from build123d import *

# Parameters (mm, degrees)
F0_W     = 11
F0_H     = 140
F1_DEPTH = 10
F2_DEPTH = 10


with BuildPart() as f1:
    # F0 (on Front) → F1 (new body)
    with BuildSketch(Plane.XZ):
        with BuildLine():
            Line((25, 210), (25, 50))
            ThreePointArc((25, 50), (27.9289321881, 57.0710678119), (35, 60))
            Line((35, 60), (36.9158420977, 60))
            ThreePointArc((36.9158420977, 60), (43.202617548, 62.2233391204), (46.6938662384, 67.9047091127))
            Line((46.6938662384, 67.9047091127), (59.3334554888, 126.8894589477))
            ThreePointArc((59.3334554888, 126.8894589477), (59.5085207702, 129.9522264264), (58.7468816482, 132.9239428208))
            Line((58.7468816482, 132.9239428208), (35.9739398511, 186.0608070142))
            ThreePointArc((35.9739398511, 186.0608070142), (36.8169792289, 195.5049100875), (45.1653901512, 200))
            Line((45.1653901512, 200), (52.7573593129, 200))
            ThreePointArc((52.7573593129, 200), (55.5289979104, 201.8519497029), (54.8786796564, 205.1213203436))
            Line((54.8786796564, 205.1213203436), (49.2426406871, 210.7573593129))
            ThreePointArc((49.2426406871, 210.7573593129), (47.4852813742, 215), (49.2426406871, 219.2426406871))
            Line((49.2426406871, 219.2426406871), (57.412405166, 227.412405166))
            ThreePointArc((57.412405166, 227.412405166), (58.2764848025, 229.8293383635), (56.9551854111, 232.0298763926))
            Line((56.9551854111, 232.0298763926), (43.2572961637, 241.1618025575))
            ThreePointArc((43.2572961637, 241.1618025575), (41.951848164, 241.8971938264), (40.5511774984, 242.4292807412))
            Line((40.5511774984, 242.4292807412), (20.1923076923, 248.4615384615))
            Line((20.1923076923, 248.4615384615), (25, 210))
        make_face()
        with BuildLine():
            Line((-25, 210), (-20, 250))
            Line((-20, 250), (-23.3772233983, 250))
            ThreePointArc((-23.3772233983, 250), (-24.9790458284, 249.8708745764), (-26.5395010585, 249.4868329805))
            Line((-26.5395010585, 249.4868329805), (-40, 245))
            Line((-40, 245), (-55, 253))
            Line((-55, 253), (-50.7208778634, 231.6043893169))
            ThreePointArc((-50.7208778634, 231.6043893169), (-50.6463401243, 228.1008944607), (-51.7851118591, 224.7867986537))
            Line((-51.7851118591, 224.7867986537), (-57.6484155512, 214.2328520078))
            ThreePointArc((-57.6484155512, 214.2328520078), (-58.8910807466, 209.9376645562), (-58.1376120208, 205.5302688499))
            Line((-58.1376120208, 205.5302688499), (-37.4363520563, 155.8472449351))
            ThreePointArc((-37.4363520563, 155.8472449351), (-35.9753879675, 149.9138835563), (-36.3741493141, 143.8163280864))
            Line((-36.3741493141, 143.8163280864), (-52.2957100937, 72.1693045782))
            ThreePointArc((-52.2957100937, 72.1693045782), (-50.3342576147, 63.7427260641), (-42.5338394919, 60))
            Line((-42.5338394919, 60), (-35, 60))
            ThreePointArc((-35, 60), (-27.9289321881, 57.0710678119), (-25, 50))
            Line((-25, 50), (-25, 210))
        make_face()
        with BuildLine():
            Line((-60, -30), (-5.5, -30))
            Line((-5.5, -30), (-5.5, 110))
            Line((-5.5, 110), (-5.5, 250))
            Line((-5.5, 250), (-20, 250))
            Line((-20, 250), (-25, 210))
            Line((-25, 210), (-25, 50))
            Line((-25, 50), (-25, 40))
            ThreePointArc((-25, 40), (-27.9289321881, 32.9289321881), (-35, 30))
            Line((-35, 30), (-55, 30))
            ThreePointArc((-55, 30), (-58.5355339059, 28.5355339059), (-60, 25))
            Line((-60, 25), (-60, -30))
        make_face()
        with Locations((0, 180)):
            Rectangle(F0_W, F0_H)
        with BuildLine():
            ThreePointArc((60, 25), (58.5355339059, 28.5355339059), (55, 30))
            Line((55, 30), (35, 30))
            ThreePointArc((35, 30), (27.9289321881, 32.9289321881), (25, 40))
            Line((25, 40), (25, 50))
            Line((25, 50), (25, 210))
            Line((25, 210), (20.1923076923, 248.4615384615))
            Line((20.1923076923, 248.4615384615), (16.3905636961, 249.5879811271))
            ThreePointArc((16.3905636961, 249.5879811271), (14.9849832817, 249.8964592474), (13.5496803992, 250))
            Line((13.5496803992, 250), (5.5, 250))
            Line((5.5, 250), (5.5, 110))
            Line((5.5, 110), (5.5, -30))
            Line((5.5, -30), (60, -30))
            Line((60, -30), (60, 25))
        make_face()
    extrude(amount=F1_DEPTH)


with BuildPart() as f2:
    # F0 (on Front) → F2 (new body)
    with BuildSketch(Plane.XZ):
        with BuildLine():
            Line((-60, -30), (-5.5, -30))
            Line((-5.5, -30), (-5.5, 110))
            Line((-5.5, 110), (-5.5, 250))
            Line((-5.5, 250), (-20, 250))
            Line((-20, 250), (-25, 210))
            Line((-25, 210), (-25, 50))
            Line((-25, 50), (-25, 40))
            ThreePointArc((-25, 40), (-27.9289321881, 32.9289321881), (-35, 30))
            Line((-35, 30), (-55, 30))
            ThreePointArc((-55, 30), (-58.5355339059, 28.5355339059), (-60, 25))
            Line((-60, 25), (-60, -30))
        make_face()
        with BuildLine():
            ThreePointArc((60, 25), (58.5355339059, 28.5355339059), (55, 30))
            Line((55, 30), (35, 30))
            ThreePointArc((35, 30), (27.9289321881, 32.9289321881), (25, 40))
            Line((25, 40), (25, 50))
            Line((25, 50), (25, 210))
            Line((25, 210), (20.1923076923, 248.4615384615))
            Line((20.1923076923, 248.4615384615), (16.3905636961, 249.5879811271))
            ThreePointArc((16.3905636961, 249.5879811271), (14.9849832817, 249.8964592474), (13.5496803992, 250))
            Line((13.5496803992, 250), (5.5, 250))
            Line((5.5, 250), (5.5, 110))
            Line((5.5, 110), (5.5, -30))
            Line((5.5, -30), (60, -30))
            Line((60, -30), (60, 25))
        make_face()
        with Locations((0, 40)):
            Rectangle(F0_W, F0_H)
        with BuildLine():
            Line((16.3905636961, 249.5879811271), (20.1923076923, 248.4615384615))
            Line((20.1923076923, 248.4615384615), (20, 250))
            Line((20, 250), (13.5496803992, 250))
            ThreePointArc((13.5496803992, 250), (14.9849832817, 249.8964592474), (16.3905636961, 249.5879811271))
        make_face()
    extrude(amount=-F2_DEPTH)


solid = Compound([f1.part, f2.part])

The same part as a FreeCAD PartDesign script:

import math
import FreeCAD as App
import Part
import Sketcher

V = App.Vector
Q = App.Units.Quantity

doc = App.newDocument("Part")
body = doc.addObject("PartDesign::Body", "Body")

# Sketch on XZ plane
sketch1 = body.newObject("Sketcher::SketchObject", "Sketch")
sketch1.AttachmentSupport = (doc.getObject("XZ_Plane"), [""])
sketch1.MapMode = "FlatFace"
sketch1.addGeometry([
    Part.ArcOfCircle(Part.Circle(V(35, 50, 0), V(0, 0, 1), 10), math.radians(90), math.radians(180)),  # 0
    Part.LineSegment(V(35, 60, 0), V(36.915842, 60, 0)),  # 1
    Part.ArcOfCircle(Part.Circle(V(36.915842, 70, 0), V(0, 0, 1), 10), math.radians(-90), math.radians(-12.094757)),  # 2
    Part.LineSegment(V(46.693866, 67.904709, 0), V(59.333455, 126.889459, 0)),  # 3
    Part.ArcOfCircle(Part.Circle(V(49.555431, 128.98475, 0), V(0, 0, 1), 10), math.radians(-12.094757), math.radians(23.198591)),  # 4
    Part.LineSegment(V(58.746882, 132.923943, 0), V(35.97394, 186.060807, 0)),  # 5
    Part.ArcOfCircle(Part.Circle(V(45.16539, 190, 0), V(0, 0, 1), 10), math.radians(90), math.radians(203.198591)),  # 6
    Part.LineSegment(V(45.16539, 200, 0), V(52.757359, 200, 0)),  # 7
    Part.ArcOfCircle(Part.Circle(V(52.757359, 203, 0), V(0, 0, 1), 3), math.radians(-90), math.radians(45)),  # 8
    Part.LineSegment(V(54.87868, 205.12132, 0), V(49.242641, 210.757359, 0)),  # 9
    Part.ArcOfCircle(Part.Circle(V(53.485281, 215, 0), V(0, 0, 1), 6), math.radians(135), math.radians(225)),  # 10
    Part.LineSegment(V(49.242641, 219.242641, 0), V(57.412405, 227.412405, 0)),  # 11
    Part.ArcOfCircle(Part.Circle(V(55.291085, 229.533726, 0), V(0, 0, 1), 3), math.radians(-45), math.radians(56.309932)),  # 12
    Part.LineSegment(V(56.955185, 232.029876, 0), V(43.257296, 241.161803, 0)),  # 13
    Part.ArcOfCircle(Part.Circle(V(37.710294, 232.8413, 0), V(0, 0, 1), 10), math.radians(56.309932), math.radians(73.495639)),  # 14
    Part.LineSegment(V(40.551177, 242.429281, 0), V(20.192308, 248.461538, 0)),  # 15
    Part.LineSegment(V(20.192308, 248.461538, 0), V(16.390564, 249.587981, 0)),  # 16
    Part.ArcOfCircle(Part.Circle(V(13.54968, 240, 0), V(0, 0, 1), 10), math.radians(73.495639), math.radians(90)),  # 17
    Part.LineSegment(V(13.54968, 250, 0), V(-23.377223, 250, 0)),  # 18
    Part.ArcOfCircle(Part.Circle(V(-23.377223, 240, 0), V(0, 0, 1), 10), math.radians(90), math.radians(108.434949)),  # 19
    Part.LineSegment(V(-26.539501, 249.486833, 0), V(-40, 245, 0)),  # 20
    Part.LineSegment(V(-40, 245, 0), V(-55, 253, 0)),  # 21
    Part.LineSegment(V(-55, 253, 0), V(-50.720878, 231.604389, 0)),  # 22
    Part.ArcOfCircle(Part.Circle(V(-60.526685, 229.643228, 0), V(0, 0, 1), 10), math.radians(-29.054604), math.radians(11.309932)),  # 23
    Part.LineSegment(V(-51.785112, 224.786799, 0), V(-57.648416, 214.232852, 0)),  # 24
    Part.ArcOfCircle(Part.Circle(V(-48.906843, 209.376423, 0), V(0, 0, 1), 10), math.radians(150.945396), math.radians(202.619865)),  # 25
    Part.LineSegment(V(-58.137612, 205.530269, 0), V(-37.436352, 155.847245, 0)),  # 26
    Part.ArcOfCircle(Part.Circle(V(-55.897891, 148.154937, 0), V(0, 0, 1), 20), math.radians(-12.528808), math.radians(22.619865)),  # 27
    Part.LineSegment(V(-36.374149, 143.816328, 0), V(-52.29571, 72.169305, 0)),  # 28
    Part.ArcOfCircle(Part.Circle(V(-42.533839, 70, 0), V(0, 0, 1), 10), math.radians(167.471192), math.radians(270)),  # 29
    Part.LineSegment(V(-42.533839, 60, 0), V(-35, 60, 0)),  # 30
    Part.ArcOfCircle(Part.Circle(V(-35, 50, 0), V(0, 0, 1), 10), math.radians(0), math.radians(90)),  # 31
    Part.LineSegment(V(-25, 50, 0), V(-25, 40, 0)),  # 32
    Part.ArcOfCircle(Part.Circle(V(-35, 40, 0), V(0, 0, 1), 10), math.radians(-90), math.radians(0)),  # 33
    Part.LineSegment(V(-35, 30, 0), V(-55, 30, 0)),  # 34
    Part.ArcOfCircle(Part.Circle(V(-55, 25, 0), V(0, 0, 1), 5), math.radians(90), math.radians(180)),  # 35
    Part.LineSegment(V(-60, 25, 0), V(-60, -30, 0)),  # 36
    Part.LineSegment(V(-60, -30, 0), V(-5.5, -30, 0)),  # 37
    Part.LineSegment(V(-5.5, -30, 0), V(-5.5, 110, 0)),  # 38
    Part.LineSegment(V(-5.5, 110, 0), V(5.5, 110, 0)),  # 39
    Part.LineSegment(V(5.5, 110, 0), V(5.5, -30, 0)),  # 40
    Part.LineSegment(V(5.5, -30, 0), V(60, -30, 0)),  # 41
    Part.LineSegment(V(60, -30, 0), V(60, 25, 0)),  # 42
    Part.ArcOfCircle(Part.Circle(V(55, 25, 0), V(0, 0, 1), 5), math.radians(0), math.radians(90)),  # 43
    Part.LineSegment(V(55, 30, 0), V(35, 30, 0)),  # 44
    Part.ArcOfCircle(Part.Circle(V(35, 40, 0), V(0, 0, 1), 10), math.radians(180), math.radians(270)),  # 45
    Part.LineSegment(V(25, 40, 0), V(25, 50, 0)),  # 46
], False)
sketch1.addConstraint([
    Sketcher.Constraint("Tangent", 0, 1, 1, 1),
    Sketcher.Constraint("Tangent", 1, 2, 2, 1),
    Sketcher.Constraint("Tangent", 2, 2, 3, 1),
    Sketcher.Constraint("Tangent", 3, 2, 4, 1),
    Sketcher.Constraint("Tangent", 4, 2, 5, 1),
    Sketcher.Constraint("Tangent", 5, 2, 6, 2),
    Sketcher.Constraint("Tangent", 6, 1, 7, 1),
    Sketcher.Constraint("Tangent", 7, 2, 8, 1),
    Sketcher.Constraint("Tangent", 8, 2, 9, 1),
    Sketcher.Constraint("Tangent", 9, 2, 10, 2),
    Sketcher.Constraint("Tangent", 10, 1, 11, 1),
    Sketcher.Constraint("Tangent", 11, 2, 12, 1),
    Sketcher.Constraint("Tangent", 12, 2, 13, 1),
    Sketcher.Constraint("Tangent", 13, 2, 14, 1),
    Sketcher.Constraint("Tangent", 14, 2, 15, 1),
    Sketcher.Constraint("Coincident", 15, 2, 16, 1),
    Sketcher.Constraint("Tangent", 16, 2, 17, 1),
    Sketcher.Constraint("Tangent", 17, 2, 18, 1),
    Sketcher.Constraint("Tangent", 18, 2, 19, 1),
    Sketcher.Constraint("Tangent", 19, 2, 20, 1),
    Sketcher.Constraint("Coincident", 20, 2, 21, 1),
    Sketcher.Constraint("Coincident", 21, 2, 22, 1),
    Sketcher.Constraint("Tangent", 22, 2, 23, 2),
    Sketcher.Constraint("Tangent", 23, 1, 24, 1),
    Sketcher.Constraint("Tangent", 24, 2, 25, 1),
    Sketcher.Constraint("Tangent", 25, 2, 26, 1),
    Sketcher.Constraint("Tangent", 26, 2, 27, 2),
    Sketcher.Constraint("Tangent", 27, 1, 28, 1),
    Sketcher.Constraint("Tangent", 28, 2, 29, 1),
    Sketcher.Constraint("Tangent", 29, 2, 30, 1),
    Sketcher.Constraint("Tangent", 30, 2, 31, 2),
    Sketcher.Constraint("Tangent", 31, 1, 32, 1),
    Sketcher.Constraint("Tangent", 32, 2, 33, 2),
    Sketcher.Constraint("Tangent", 33, 1, 34, 1),
    Sketcher.Constraint("Tangent", 34, 2, 35, 1),
    Sketcher.Constraint("Tangent", 35, 2, 36, 1),
    Sketcher.Constraint("Coincident", 36, 2, 37, 1),
    Sketcher.Constraint("Coincident", 37, 2, 38, 1),
    Sketcher.Constraint("Coincident", 38, 2, 39, 1),
    Sketcher.Constraint("Coincident", 39, 2, 40, 1),
    Sketcher.Constraint("Coincident", 40, 2, 41, 1),
    Sketcher.Constraint("Coincident", 41, 2, 42, 1),
    Sketcher.Constraint("Tangent", 42, 2, 43, 1),
    Sketcher.Constraint("Tangent", 43, 2, 44, 1),
    Sketcher.Constraint("Tangent", 44, 2, 45, 2),
    Sketcher.Constraint("Tangent", 45, 1, 46, 1),
    Sketcher.Constraint("Tangent", 46, 2, 0, 2),
    Sketcher.Constraint("Horizontal", 1),
    Sketcher.Constraint("Horizontal", 7),
    Sketcher.Constraint("Horizontal", 18),
    Sketcher.Constraint("Horizontal", 30),
    Sketcher.Constraint("Vertical", 32),
    Sketcher.Constraint("Horizontal", 34),
    Sketcher.Constraint("Vertical", 36),
    Sketcher.Constraint("Horizontal", 37),
    Sketcher.Constraint("Vertical", 38),
    Sketcher.Constraint("Horizontal", 39),
    Sketcher.Constraint("Vertical", 40),
    Sketcher.Constraint("Horizontal", 41),
    Sketcher.Constraint("Vertical", 42),
    Sketcher.Constraint("Horizontal", 44),
    Sketcher.Constraint("Vertical", 46),
    Sketcher.Constraint("Equal", 0, 2),
    Sketcher.Constraint("Equal", 2, 4),
    Sketcher.Constraint("Equal", 4, 6),
    Sketcher.Constraint("Equal", 8, 12),
    Sketcher.Constraint("Equal", 6, 14),
    Sketcher.Constraint("Equal", 14, 17),
    Sketcher.Constraint("Equal", 17, 19),
    Sketcher.Constraint("Equal", 19, 23),
    Sketcher.Constraint("Equal", 23, 25),
    Sketcher.Constraint("Equal", 25, 29),
    Sketcher.Constraint("Equal", 29, 31),
    Sketcher.Constraint("Equal", 31, 33),
    Sketcher.Constraint("Equal", 35, 43),
    Sketcher.Constraint("Equal", 33, 45),
    Sketcher.Constraint("Symmetric", 0, 3, 31, 3, -2),
    Sketcher.Constraint("Symmetric", 35, 3, 43, 3, -2),
    Sketcher.Constraint("Symmetric", 37, 2, 40, 2, -2),
    Sketcher.Constraint("Perpendicular", 9, 11),
    Sketcher.Constraint("Parallel", 15, 16),
    Sketcher.Constraint("Vertical", 9, 2, 10, 1),
    Sketcher.Constraint("Vertical", 35, 3, 21, 2),
    Sketcher.Constraint("Radius", 0, Q("10 mm")),
    Sketcher.Constraint("Radius", 8, Q("3 mm")),
    Sketcher.Constraint("Radius", 10, Q("6 mm")),
    Sketcher.Constraint("Radius", 27, Q("20 mm")),
    Sketcher.Constraint("Radius", 35, Q("5 mm")),
    Sketcher.Constraint("DistanceX", 34, 2, 34, 1, Q("20 mm")),
    Sketcher.Constraint("DistanceX", 39, 1, 39, 2, Q("11 mm")),
    Sketcher.Constraint("DistanceY", 32, 2, 32, 1, Q("10 mm")),
    Sketcher.Constraint("DistanceY", 36, 2, 36, 1, Q("55 mm")),
    Sketcher.Constraint("DistanceY", 38, 1, 38, 2, Q("140 mm")),
    Sketcher.Constraint("Distance", 21, Q("17 mm")),
    Sketcher.Constraint("DistanceX", 37, 1, 37, 2, Q("54.5 mm")),
    Sketcher.Constraint("DistanceY", -1, 1, 0, 3, Q("50 mm")),
    Sketcher.Constraint("DistanceY", -1, 1, 6, 3, Q("190 mm")),
    Sketcher.Constraint("DistanceY", -1, 1, 10, 3, Q("215 mm")),
    Sketcher.Constraint("DistanceY", -1, 1, 17, 3, Q("240 mm")),
    Sketcher.Constraint("DistanceX", 20, 2, -1, 1, Q("40 mm")),
    Sketcher.Constraint("DistanceY", -1, 1, 20, 2, Q("245 mm")),
    Sketcher.Constraint("DistanceX", 7, 1, 7, 2, Q("7.591969 mm")),
    Sketcher.Constraint("DistanceX", 30, 1, 30, 2, Q("7.533839 mm")),
    Sketcher.Constraint("DistanceY", -1, 1, 14, 3, Q("232.8413 mm")),
    Sketcher.Constraint("DistanceX", 19, 2, -1, 1, Q("26.539501 mm")),
    Sketcher.Constraint("DistanceY", -1, 1, 23, 1, Q("224.786799 mm")),
    Sketcher.Constraint("Distance", 11, Q("11.553792 mm")),
    Sketcher.Constraint("Distance", 15, Q("21.23374 mm")),
    Sketcher.Constraint("Distance", 24, Q("12.073281 mm")),
    Sketcher.Constraint("Distance", 28, Q("73.394769 mm")),
    Sketcher.Constraint("DistanceX", 1, 1, 1, 2, Q("1.915842 mm")),
    Sketcher.Constraint("DistanceX", 18, 2, 18, 1, Q("36.926904 mm")),
    Sketcher.Constraint("DistanceX", -1, 1, 4, 3, Q("49.555431 mm")),
    Sketcher.Constraint("DistanceY", -1, 1, 4, 3, Q("128.98475 mm")),
    Sketcher.Constraint("DistanceX", -1, 1, 6, 3, Q("45.16539 mm")),
    Sketcher.Constraint("DistanceX", 27, 3, -1, 1, Q("55.897891 mm")),
    Sketcher.Constraint("DistanceY", -1, 1, 14, 2, Q("242.429281 mm")),
    Sketcher.Constraint("DistanceY", -1, 1, 22, 2, Q("231.604389 mm")),
    Sketcher.Constraint("DistanceX", 23, 1, -1, 1, Q("51.785112 mm")),
])
pad1 = body.newObject("PartDesign::Pad", "Pad")
pad1.Profile = sketch1
pad1.Length = 10
body2 = doc.addObject("PartDesign::Body", "Body001")

# Sketch on XZ plane
sketch2 = body2.newObject("Sketcher::SketchObject", "Sketch001")
sketch2.AttachmentSupport = (doc.getObject("XZ_Plane001"), [""])
sketch2.MapMode = "FlatFace"
sketch2.addGeometry([
    Part.LineSegment(V(-60, -30, 0), V(60, -30, 0)),  # 0
    Part.LineSegment(V(60, -30, 0), V(60, 25, 0)),  # 1
    Part.ArcOfCircle(Part.Circle(V(55, 25, 0), V(0, 0, 1), 5), math.radians(0), math.radians(90)),  # 2
    Part.LineSegment(V(55, 30, 0), V(35, 30, 0)),  # 3
    Part.ArcOfCircle(Part.Circle(V(35, 40, 0), V(0, 0, 1), 10), math.radians(180), math.radians(270)),  # 4
    Part.LineSegment(V(25, 40, 0), V(25, 210, 0)),  # 5
    Part.LineSegment(V(25, 210, 0), V(20.192308, 248.461538, 0)),  # 6
    Part.LineSegment(V(20.192308, 248.461538, 0), V(20, 250, 0)),  # 7
    Part.LineSegment(V(20, 250, 0), V(5.5, 250, 0)),  # 8
    Part.LineSegment(V(5.5, 250, 0), V(5.5, 110, 0)),  # 9
    Part.LineSegment(V(5.5, 110, 0), V(-5.5, 110, 0)),  # 10
    Part.LineSegment(V(-5.5, 110, 0), V(-5.5, 250, 0)),  # 11
    Part.LineSegment(V(-5.5, 250, 0), V(-20, 250, 0)),  # 12
    Part.LineSegment(V(-20, 250, 0), V(-25, 210, 0)),  # 13
    Part.LineSegment(V(-25, 210, 0), V(-25, 40, 0)),  # 14
    Part.ArcOfCircle(Part.Circle(V(-35, 40, 0), V(0, 0, 1), 10), math.radians(-90), math.radians(0)),  # 15
    Part.LineSegment(V(-35, 30, 0), V(-55, 30, 0)),  # 16
    Part.ArcOfCircle(Part.Circle(V(-55, 25, 0), V(0, 0, 1), 5), math.radians(90), math.radians(180)),  # 17
    Part.LineSegment(V(-60, 25, 0), V(-60, -30, 0)),  # 18
], False)
sketch2.addConstraint([
    Sketcher.Constraint("Coincident", 0, 2, 1, 1),
    Sketcher.Constraint("Tangent", 1, 2, 2, 1),
    Sketcher.Constraint("Tangent", 2, 2, 3, 1),
    Sketcher.Constraint("Tangent", 3, 2, 4, 2),
    Sketcher.Constraint("Tangent", 4, 1, 5, 1),
    Sketcher.Constraint("Coincident", 5, 2, 6, 1),
    Sketcher.Constraint("Coincident", 6, 2, 7, 1),
    Sketcher.Constraint("Coincident", 7, 2, 8, 1),
    Sketcher.Constraint("Coincident", 8, 2, 9, 1),
    Sketcher.Constraint("Coincident", 9, 2, 10, 1),
    Sketcher.Constraint("Coincident", 10, 2, 11, 1),
    Sketcher.Constraint("Coincident", 11, 2, 12, 1),
    Sketcher.Constraint("Coincident", 12, 2, 13, 1),
    Sketcher.Constraint("Coincident", 13, 2, 14, 1),
    Sketcher.Constraint("Tangent", 14, 2, 15, 2),
    Sketcher.Constraint("Tangent", 15, 1, 16, 1),
    Sketcher.Constraint("Tangent", 16, 2, 17, 1),
    Sketcher.Constraint("Tangent", 17, 2, 18, 1),
    Sketcher.Constraint("Coincident", 18, 2, 0, 1),
    Sketcher.Constraint("Horizontal", 0),
    Sketcher.Constraint("Vertical", 1),
    Sketcher.Constraint("Horizontal", 3),
    Sketcher.Constraint("Vertical", 5),
    Sketcher.Constraint("Horizontal", 8),
    Sketcher.Constraint("Vertical", 9),
    Sketcher.Constraint("Horizontal", 10),
    Sketcher.Constraint("Vertical", 11),
    Sketcher.Constraint("Horizontal", 12),
    Sketcher.Constraint("Vertical", 14),
    Sketcher.Constraint("Horizontal", 16),
    Sketcher.Constraint("Vertical", 18),
    Sketcher.Constraint("Equal", 4, 15),
    Sketcher.Constraint("Equal", 2, 17),
    Sketcher.Constraint("Symmetric", 4, 3, 15, 3, -2),
    Sketcher.Constraint("Symmetric", 8, 2, 11, 2, -2),
    Sketcher.Constraint("Parallel", 6, 7),
    Sketcher.Constraint("Horizontal", 5, 2, 13, 2),
    Sketcher.Constraint("Equal", 8, 12),
    Sketcher.Constraint("Equal", 3, 16),
    Sketcher.Constraint("Radius", 2, Q("5 mm")),
    Sketcher.Constraint("Radius", 4, Q("10 mm")),
    Sketcher.Constraint("DistanceX", 0, 1, 0, 2, Q("120 mm")),
    Sketcher.Constraint("DistanceX", 3, 2, 3, 1, Q("20 mm")),
    Sketcher.Constraint("DistanceX", 10, 2, 10, 1, Q("11 mm")),
    Sketcher.Constraint("DistanceY", 1, 1, 1, 2, Q("55 mm")),
    Sketcher.Constraint("DistanceY", 5, 1, 5, 2, Q("170 mm")),
    Sketcher.Constraint("DistanceY", 9, 2, 9, 1, Q("140 mm")),
    Sketcher.Constraint("DistanceX", 8, 2, 8, 1, Q("14.5 mm")),
    Sketcher.Constraint("DistanceY", -1, 1, 2, 3, Q("25 mm")),
    Sketcher.Constraint("DistanceY", -1, 1, 7, 2, Q("250 mm")),
    Sketcher.Constraint("DistanceY", -1, 1, 6, 2, Q("248.461538 mm")),
])
pad2 = body2.newObject("PartDesign::Pad", "Pad001")
pad2.Profile = sketch2
pad2.Length = 10
pad2.Reversed = True

doc.recompute()
